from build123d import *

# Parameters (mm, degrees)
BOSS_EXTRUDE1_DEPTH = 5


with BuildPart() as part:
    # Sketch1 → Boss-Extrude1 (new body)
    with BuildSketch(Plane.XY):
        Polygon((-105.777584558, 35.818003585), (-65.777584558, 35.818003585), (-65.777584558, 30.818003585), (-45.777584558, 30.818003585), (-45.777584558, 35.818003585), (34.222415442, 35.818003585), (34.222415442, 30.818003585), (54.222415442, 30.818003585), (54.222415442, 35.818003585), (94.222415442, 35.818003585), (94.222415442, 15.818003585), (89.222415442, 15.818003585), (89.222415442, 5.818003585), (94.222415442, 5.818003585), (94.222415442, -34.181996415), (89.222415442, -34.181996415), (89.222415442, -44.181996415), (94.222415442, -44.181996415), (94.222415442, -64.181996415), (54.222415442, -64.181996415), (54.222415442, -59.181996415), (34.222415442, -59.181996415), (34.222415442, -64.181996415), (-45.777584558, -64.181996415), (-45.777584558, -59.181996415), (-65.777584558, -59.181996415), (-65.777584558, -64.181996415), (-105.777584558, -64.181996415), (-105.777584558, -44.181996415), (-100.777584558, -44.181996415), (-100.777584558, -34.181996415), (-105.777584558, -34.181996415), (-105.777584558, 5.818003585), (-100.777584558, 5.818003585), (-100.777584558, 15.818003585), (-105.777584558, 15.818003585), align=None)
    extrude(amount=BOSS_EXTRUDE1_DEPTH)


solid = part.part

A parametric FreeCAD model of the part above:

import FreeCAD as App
import Part
import Sketcher

V = App.Vector

doc = App.newDocument("Part")
params = doc.addObject("Spreadsheet::Sheet", "Params")
for row, (alias, value) in enumerate([
    ("sketch1_width", "40 mm"),
    ("sketch1_width2", "5 mm"),
    ("sketch1_width3", "20 mm"),
    ("sketch1_width4", "80 mm"),
    ("sketch1_height", "10 mm"),
    ("pad1_length", "5 mm"),
], start=1):
    params.set(f"A{row}", alias)
    params.set(f"B{row}", "=" + value)
    params.setAlias(f"B{row}", alias)

body = doc.addObject("PartDesign::Body", "Body")

# Sketch on XY plane
sketch1 = body.newObject("Sketcher::SketchObject", "Sketch")
sketch1.AttachmentSupport = (doc.getObject("XY_Plane"), [""])
sketch1.MapMode = "FlatFace"
sketch1.addGeometry(Part.LineSegment(V(-66, 36, 0), V(-106, 36, 0)), False)
sketch1.addGeometry(Part.LineSegment(V(-106, 36, 0), V(-106, 16, 0)), False)
sketch1.addGeometry(Part.LineSegment(V(-106, 16, 0), V(-101, 16, 0)), False)
sketch1.addGeometry(Part.LineSegment(V(-101, 16, 0), V(-101, 6, 0)), False)
sketch1.addGeometry(Part.LineSegment(V(-101, 6, 0), V(-106, 6, 0)), False)
sketch1.addGeometry(Part.LineSegment(V(-106, 6, 0), V(-106, -34, 0)), False)
sketch1.addGeometry(Part.LineSegment(V(-106, -34, 0), V(-101, -34, 0)), False)
sketch1.addGeometry(Part.LineSegment(V(-101, -34, 0), V(-101, -44, 0)), False)
sketch1.addGeometry(Part.LineSegment(V(-101, -44, 0), V(-106, -44, 0)), False)
sketch1.addGeometry(Part.LineSegment(V(-106, -44, 0), V(-106, -64, 0)), False)
sketch1.addGeometry(Part.LineSegment(V(-106, -64, 0), V(-66, -64, 0)), False)
sketch1.addGeometry(Part.LineSegment(V(-66, -64, 0), V(-66, -59, 0)), False)
sketch1.addGeometry(Part.LineSegment(V(-66, -59, 0), V(-46, -59, 0)), False)
sketch1.addGeometry(Part.LineSegment(V(-46, -59, 0), V(-46, -64, 0)), False)
sketch1.addGeometry(Part.LineSegment(V(-46, -64, 0), V(34, -64, 0)), False)
sketch1.addGeometry(Part.LineSegment(V(34, -64, 0), V(34, -59, 0)), False)
sketch1.addGeometry(Part.LineSegment(V(34, -59, 0), V(54, -59, 0)), False)
sketch1.addGeometry(Part.LineSegment(V(54, -59, 0), V(54, -64, 0)), False)
sketch1.addGeometry(Part.LineSegment(V(54, -64, 0), V(94, -64, 0)), False)
sketch1.addGeometry(Part.LineSegment(V(94, -64, 0), V(94, -44, 0)), False)
sketch1.addGeometry(Part.LineSegment(V(94, -44, 0), V(89, -44, 0)), False)
sketch1.addGeometry(Part.LineSegment(V(89, -44, 0), V(89, -34, 0)), False)
sketch1.addGeometry(Part.LineSegment(V(89, -34, 0), V(94, -34, 0)), False)
sketch1.addGeometry(Part.LineSegment(V(94, -34, 0), V(94, 6, 0)), False)
sketch1.addGeometry(Part.LineSegment(V(94, 6, 0), V(89, 6, 0)), False)
sketch1.addGeometry(Part.LineSegment(V(89, 6, 0), V(89, 16, 0)), False)
sketch1.addGeometry(Part.LineSegment(V(89, 16, 0), V(94, 16, 0)), False)
sketch1.addGeometry(Part.LineSegment(V(94, 16, 0), V(94, 36, 0)), False)
sketch1.addGeometry(Part.LineSegment(V(94, 36, 0), V(54, 36, 0)), False)
sketch1.addGeometry(Part.LineSegment(V(54, 36, 0), V(54, 31, 0)), False)
sketch1.addGeometry(Part.LineSegment(V(54, 31, 0), V(34, 31, 0)), False)
sketch1.addGeometry(Part.LineSegment(V(34, 31, 0), V(34, 36, 0)), False)
sketch1.addGeometry(Part.LineSegment(V(34, 36, 0), V(-46, 36, 0)), False)
sketch1.addGeometry(Part.LineSegment(V(-46, 36, 0), V(-46, 31, 0)), False)
sketch1.addGeometry(Part.LineSegment(V(-46, 31, 0), V(-66, 31, 0)), False)
sketch1.addGeometry(Part.LineSegment(V(-66, 31, 0), V(-66, 36, 0)), False)
sketch1.addConstraint(Sketcher.Constraint("Coincident", 0, 2, 1, 1))
sketch1.addConstraint(Sketcher.Constraint("Coincident", 1, 2, 2, 1))
sketch1.addConstraint(Sketcher.Constraint("Coincident", 2, 2, 3, 1))
sketch1.addConstraint(Sketcher.Constraint("Coincident", 3, 2, 4, 1))
sketch1.addConstraint(Sketcher.Constraint("Coincident", 4, 2, 5, 1))
sketch1.addConstraint(Sketcher.Constraint("Coincident", 5, 2, 6, 1))
sketch1.addConstraint(Sketcher.Constraint("Coincident", 6, 2, 7, 1))
sketch1.addConstraint(Sketcher.Constraint("Coincident", 7, 2, 8, 1))
sketch1.addConstraint(Sketcher.Constraint("Coincident", 8, 2, 9, 1))
sketch1.addConstraint(Sketcher.Constraint("Coincident", 9, 2, 10, 1))
sketch1.addConstraint(Sketcher.Constraint("Coincident", 10, 2, 11, 1))
sketch1.addConstraint(Sketcher.Constraint("Coincident", 11, 2, 12, 1))
sketch1.addConstraint(Sketcher.Constraint("Coincident", 12, 2, 13, 1))
sketch1.addConstraint(Sketcher.Constraint("Coincident", 13, 2, 14, 1))
sketch1.addConstraint(Sketcher.Constraint("Coincident", 14, 2, 15, 1))
sketch1.addConstraint(Sketcher.Constraint("Coincident", 15, 2, 16, 1))
sketch1.addConstraint(Sketcher.Constraint("Coincident", 16, 2, 17, 1))
sketch1.addConstraint(Sketcher.Constraint("Coincident", 17, 2, 18, 1))
sketch1.addConstraint(Sketcher.Constraint("Coincident", 18, 2, 19, 1))
sketch1.addConstraint(Sketcher.Constraint("Coincident", 19, 2, 20, 1))
sketch1.addConstraint(Sketcher.Constraint("Coincident", 20, 2, 21, 1))
sketch1.addConstraint(Sketcher.Constraint("Coincident", 21, 2, 22, 1))
sketch1.addConstraint(Sketcher.Constraint("Coincident", 22, 2, 23, 1))
sketch1.addConstraint(Sketcher.Constraint("Coincident", 23, 2, 24, 1))
sketch1.addConstraint(Sketcher.Constraint("Coincident", 24, 2, 25, 1))
sketch1.addConstraint(Sketcher.Constraint("Coincident", 25, 2, 26, 1))
sketch1.addConstraint(Sketcher.Constraint("Coincident", 26, 2, 27, 1))
sketch1.addConstraint(Sketcher.Constraint("Coincident", 27, 2, 28, 1))
sketch1.addConstraint(Sketcher.Constraint("Coincident", 28, 2, 29, 1))
sketch1.addConstraint(Sketcher.Constraint("Coincident", 29, 2, 30, 1))
sketch1.addConstraint(Sketcher.Constraint("Coincident", 30, 2, 31, 1))
sketch1.addConstraint(Sketcher.Constraint("Coincident", 31, 2, 32, 1))
sketch1.addConstraint(Sketcher.Constraint("Coincident", 32, 2, 33, 1))
sketch1.addConstraint(Sketcher.Constraint("Coincident", 33, 2, 34, 1))
sketch1.addConstraint(Sketcher.Constraint("Coincident", 34, 2, 35, 1))
sketch1.addConstraint(Sketcher.Constraint("Coincident", 35, 2, 0, 1))
sketch1.addConstraint(Sketcher.Constraint("Horizontal", 0))
sketch1.addConstraint(Sketcher.Constraint("Vertical", 1))
sketch1.addConstraint(Sketcher.Constraint("Horizontal", 2))
sketch1.addConstraint(Sketcher.Constraint("Vertical", 3))
sketch1.addConstraint(Sketcher.Constraint("Horizontal", 4))
sketch1.addConstraint(Sketcher.Constraint("Vertical", 5))
sketch1.addConstraint(Sketcher.Constraint("Horizontal", 6))
sketch1.addConstraint(Sketcher.Constraint("Vertical", 7))
sketch1.addConstraint(Sketcher.Constraint("Horizontal", 8))
sketch1.addConstraint(Sketcher.Constraint("Vertical", 9))
sketch1.addConstraint(Sketcher.Constraint("Horizontal", 10))
sketch1.addConstraint(Sketcher.Constraint("Vertical", 11))
sketch1.addConstraint(Sketcher.Constraint("Horizontal", 12))
sketch1.addConstraint(Sketcher.Constraint("Vertical", 13))
sketch1.addConstraint(Sketcher.Constraint("Horizontal", 14))
sketch1.addConstraint(Sketcher.Constraint("Vertical", 15))
sketch1.addConstraint(Sketcher.Constraint("Horizontal", 16))
sketch1.addConstraint(Sketcher.Constraint("Vertical", 17))
sketch1.addConstraint(Sketcher.Constraint("Horizontal", 18))
sketch1.addConstraint(Sketcher.Constraint("Vertical", 19))
sketch1.addConstraint(Sketcher.Constraint("Horizontal", 20))
sketch1.addConstraint(Sketcher.Constraint("Vertical", 21))
sketch1.addConstraint(Sketcher.Constraint("Horizontal", 22))
sketch1.addConstraint(Sketcher.Constraint("Vertical", 23))
sketch1.addConstraint(Sketcher.Constraint("Horizontal", 24))
sketch1.addConstraint(Sketcher.Constraint("Vertical", 25))
sketch1.addConstraint(Sketcher.Constraint("Horizontal", 26))
sketch1.addConstraint(Sketcher.Constraint("Vertical", 27))
sketch1.addConstraint(Sketcher.Constraint("Horizontal", 28))
sketch1.addConstraint(Sketcher.Constraint("Vertical", 29))
sketch1.addConstraint(Sketcher.Constraint("Horizontal", 30))
sketch1.addConstraint(Sketcher.Constraint("Vertical", 31))
sketch1.addConstraint(Sketcher.Constraint("Horizontal", 32))
sketch1.addConstraint(Sketcher.Constraint("Vertical", 33))
sketch1.addConstraint(Sketcher.Constraint("Horizontal", 34))
sketch1.addConstraint(Sketcher.Constraint("Vertical", 35))
sketch1.addConstraint(Sketcher.Constraint("Horizontal", 10, 2, 13, 2))
sketch1.addConstraint(Sketcher.Constraint("Horizontal", 12, 2, 15, 2))
sketch1.addConstraint(Sketcher.Constraint("Horizontal", 14, 2, 17, 2))
sketch1.addConstraint(Sketcher.Constraint("Horizontal", 8, 2, 19, 2))
sketch1.addConstraint(Sketcher.Constraint("Horizontal", 6, 2, 21, 2))
sketch1.addConstraint(Sketcher.Constraint("Horizontal", 4, 2, 23, 2))
sketch1.addConstraint(Sketcher.Constraint("Horizontal", 2, 2, 25, 2))
sketch1.addConstraint(Sketcher.Constraint("Horizontal", 0, 2, 27, 2))
sketch1.addConstraint(Sketcher.Constraint("Horizontal", 28, 2, 31, 2))
sketch1.addConstraint(Sketcher.Constraint("Horizontal", 30, 2, 33, 2))
sketch1.addConstraint(Sketcher.Constraint("Vertical", 1, 2, 4, 2))
sketch1.addConstraint(Sketcher.Constraint("Vertical", 3, 2, 6, 2))
sketch1.addConstraint(Sketcher.Constraint("Vertical", 5, 2, 8, 2))
sketch1.addConstraint(Sketcher.Constraint("Vertical", 19, 2, 22, 2))
sketch1.addConstraint(Sketcher.Constraint("Vertical", 21, 2, 24, 2))
sketch1.addConstraint(Sketcher.Constraint("Vertical", 23, 2, 26, 2))
sketch1.addConstraint(Sketcher.Constraint("Vertical", 17, 2, 28, 2))
sketch1.addConstraint(Sketcher.Constraint("Vertical", 15, 2, 30, 2))
sketch1.addConstraint(Sketcher.Constraint("Vertical", 13, 2, 32, 2))
sketch1.addConstraint(Sketcher.Constraint("Vertical", 11, 2, 34, 2))
sketch1.addConstraint(Sketcher.Constraint("Equal", 12, 16))
sketch1.addConstraint(Sketcher.Constraint("Equal", 10, 18))
sketch1.addConstraint(Sketcher.Constraint("Equal", 8, 20))
sketch1.addConstraint(Sketcher.Constraint("Equal", 34, 1))
sketch1.addConstraint(Sketcher.Constraint("Equal", 28, 5))
sketch1.addConstraint(Sketcher.Constraint("Equal", 3, 7))
sketch1.addConstraint(Sketcher.Constraint("Equal", 1, 9))
sketch1.addConstraint(Sketcher.Constraint("Equal", 26, 11))
sketch1.addConstraint(Sketcher.Constraint("Equal", 17, 29))
sketch1.addConstraint(Sketcher.Constraint("DistanceX", 0, 2, 0, 1, 40.0))
sketch1.addConstraint(Sketcher.Constraint("DistanceX", 2, 1, 2, 2, 5.0))
sketch1.addConstraint(Sketcher.Constraint("DistanceX", 12, 1, 12, 2, 20.0))
sketch1.addConstraint(Sketcher.Constraint("DistanceX", 14, 1, 14, 2, 80.0))
sketch1.addConstraint(Sketcher.Constraint("DistanceY", 3, 2, 3, 1, 10.0))
sketch1.addConstraint(Sketcher.Constraint("DistanceX", 0, 2, -1, 1, 105.777585))
sketch1.addConstraint(Sketcher.Constraint("DistanceY", -1, 1, 0, 2, 35.818004))
sketch1.setExpression("Constraints[101]", "Params.sketch1_width")
sketch1.setExpression("Constraints[102]", "Params.sketch1_width2")
sketch1.setExpression("Constraints[103]", "Params.sketch1_width3")
sketch1.setExpression("Constraints[104]", "Params.sketch1_width4")
sketch1.setExpression("Constraints[105]", "Params.sketch1_height")
pad1 = body.newObject("PartDesign::Pad", "Pad")
pad1.Profile = sketch1
pad1.setExpression("Length", "Params.pad1_length")

doc.recompute()
